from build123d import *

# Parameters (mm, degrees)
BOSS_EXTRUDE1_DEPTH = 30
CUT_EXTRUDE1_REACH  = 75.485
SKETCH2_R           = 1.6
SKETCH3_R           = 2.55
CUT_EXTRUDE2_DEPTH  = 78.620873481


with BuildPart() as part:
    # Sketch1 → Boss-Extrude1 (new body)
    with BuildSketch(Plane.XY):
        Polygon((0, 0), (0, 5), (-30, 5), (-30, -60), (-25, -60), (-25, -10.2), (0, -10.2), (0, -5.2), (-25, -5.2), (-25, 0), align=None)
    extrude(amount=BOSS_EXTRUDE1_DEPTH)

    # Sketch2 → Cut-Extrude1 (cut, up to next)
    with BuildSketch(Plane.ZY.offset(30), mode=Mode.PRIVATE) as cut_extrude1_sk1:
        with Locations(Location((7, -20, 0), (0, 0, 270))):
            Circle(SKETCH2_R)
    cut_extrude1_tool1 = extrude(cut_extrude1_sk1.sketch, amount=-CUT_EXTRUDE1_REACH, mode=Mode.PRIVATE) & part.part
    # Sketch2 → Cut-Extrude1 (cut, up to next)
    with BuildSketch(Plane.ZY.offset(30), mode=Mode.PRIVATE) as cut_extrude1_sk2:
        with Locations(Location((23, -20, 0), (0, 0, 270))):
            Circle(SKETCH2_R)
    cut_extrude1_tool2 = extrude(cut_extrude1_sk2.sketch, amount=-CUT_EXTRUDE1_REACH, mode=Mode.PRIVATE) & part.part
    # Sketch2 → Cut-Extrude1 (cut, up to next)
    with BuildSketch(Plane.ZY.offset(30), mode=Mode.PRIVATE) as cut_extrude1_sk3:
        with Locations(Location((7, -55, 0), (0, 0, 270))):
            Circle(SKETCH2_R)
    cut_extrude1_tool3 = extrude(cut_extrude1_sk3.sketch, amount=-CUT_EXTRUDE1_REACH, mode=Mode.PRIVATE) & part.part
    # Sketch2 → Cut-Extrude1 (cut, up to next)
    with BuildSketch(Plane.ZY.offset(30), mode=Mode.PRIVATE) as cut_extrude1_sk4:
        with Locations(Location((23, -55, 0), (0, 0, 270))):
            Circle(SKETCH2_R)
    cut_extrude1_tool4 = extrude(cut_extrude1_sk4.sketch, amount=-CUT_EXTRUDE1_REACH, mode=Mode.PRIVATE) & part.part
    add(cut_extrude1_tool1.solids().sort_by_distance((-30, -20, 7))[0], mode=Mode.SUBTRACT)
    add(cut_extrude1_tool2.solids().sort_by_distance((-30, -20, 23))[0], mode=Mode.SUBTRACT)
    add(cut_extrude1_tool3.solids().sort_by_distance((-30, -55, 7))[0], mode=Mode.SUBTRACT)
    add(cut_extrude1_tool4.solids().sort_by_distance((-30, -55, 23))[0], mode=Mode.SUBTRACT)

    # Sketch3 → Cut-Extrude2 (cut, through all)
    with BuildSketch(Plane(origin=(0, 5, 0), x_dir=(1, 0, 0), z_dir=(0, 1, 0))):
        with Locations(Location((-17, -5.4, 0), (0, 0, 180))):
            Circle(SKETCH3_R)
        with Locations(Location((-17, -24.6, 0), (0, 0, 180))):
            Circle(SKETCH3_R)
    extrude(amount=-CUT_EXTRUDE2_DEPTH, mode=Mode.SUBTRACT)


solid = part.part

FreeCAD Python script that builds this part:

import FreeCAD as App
import Part
import Sketcher
from FreeCAD import Vector


def add_polygon(sketch, points):
    """Adds a closed chain of lines whose ends are joined by coincident constraints."""
    first, n = sketch.GeometryCount, len(points)
    for a, b in zip(points, points[1:] + points[:1]):
        sketch.addGeometry(Part.LineSegment(App.Vector(*a, 0), App.Vector(*b, 0)), False)
    for i in range(n):
        sketch.addConstraint(Sketcher.Constraint("Coincident", first + i, 2, first + (i + 1) % n, 1))

doc = App.newDocument("Part")
body = doc.addObject("PartDesign::Body", "Body")

# Sketch on XY plane
sketch1 = doc.addObject("Sketcher::SketchObject", "Sketch")
body.addObject(sketch1)
sketch1.AttachmentSupport = (doc.XY_Plane, [""])
sketch1.MapMode = "FlatFace"
add_polygon(sketch1, [(0, 0), (0, 5), (-30, 5), (-30, -60), (-25, -60), (-25, -10.2), (0, -10.2), (0, -5.2), (-25, -5.2), (-25, 0)])  # lines 0-9
sketch1.addConstraint(Sketcher.Constraint("Vertical", 0))
sketch1.addConstraint(Sketcher.Constraint("Horizontal", 1))
sketch1.addConstraint(Sketcher.Constraint("Vertical", 2))
sketch1.addConstraint(Sketcher.Constraint("Horizontal", 3))
sketch1.addConstraint(Sketcher.Constraint("Vertical", 4))
sketch1.addConstraint(Sketcher.Constraint("Horizontal", 5))
sketch1.addConstraint(Sketcher.Constraint("Vertical", 6))
sketch1.addConstraint(Sketcher.Constraint("Horizontal", 7))
sketch1.addConstraint(Sketcher.Constraint("Vertical", 8))
sketch1.addConstraint(Sketcher.Constraint("Horizontal", 9))
sketch1.addConstraint(Sketcher.Constraint("Coincident", 9, 2, -1, 1))
sketch1.addConstraint(Sketcher.Constraint("PointOnObject", 5, 2, -2))
sketch1.addConstraint(Sketcher.Constraint("Vertical", 4, 2, 7, 2))
sketch1.addConstraint(Sketcher.Constraint("Equal", 3, 0))
sketch1.addConstraint(Sketcher.Constraint("Equal", 0, 6))
sketch1.addConstraint(Sketcher.Constraint("DistanceX", 1, 2, 1, 1, 30.0))
sketch1.addConstraint(Sketcher.Constraint("DistanceX", 3, 1, 3, 2, 5.0))
sketch1.addConstraint(Sketcher.Constraint("DistanceY", 2, 2, 2, 1, 65.0))
sketch1.addConstraint(Sketcher.Constraint("DistanceY", 4, 1, 4, 2, 49.8))
pad1 = doc.addObject("PartDesign::Pad", "Pad")
body.addObject(pad1)
pad1.Profile = sketch1
pad1.Length = 30

# Sketch on YZ plane
sketch2 = doc.addObject("Sketcher::SketchObject", "Sketch001")
body.addObject(sketch2)
sketch2.AttachmentSupport = (doc.YZ_Plane, [""])
sketch2.MapMode = "FlatFace"
sketch2.AttachmentOffset = App.Placement(Vector(0, 0, -30), App.Rotation())
sketch2.addGeometry(Part.Circle(Vector(-20, 7, 0), Vector(0, 0, 1), 1.6), False)
sketch2.addConstraint(Sketcher.Constraint("Diameter", 0, 3.2))
sketch2.addConstraint(Sketcher.Constraint("DistanceX", 0, 3, -1, 1, 20.0))
sketch2.addConstraint(Sketcher.Constraint("DistanceY", -1, 1, 0, 3, 7.0))
pocket1 = doc.addObject("PartDesign::Pocket", "Pocket")
body.addObject(pocket1)
pocket1.Profile = sketch2
pocket1.Type = "UpToFirst"
pocket1.Reversed = True

# Sketch on YZ plane
sketch3 = doc.addObject("Sketcher::SketchObject", "Sketch002")
body.addObject(sketch3)
sketch3.AttachmentSupport = (doc.YZ_Plane, [""])
sketch3.MapMode = "FlatFace"
sketch3.AttachmentOffset = App.Placement(Vector(0, 0, -30), App.Rotation())
sketch3.addGeometry(Part.Circle(Vector(-20, 23, 0), Vector(0, 0, 1), 1.6), False)
sketch3.addConstraint(Sketcher.Constraint("Diameter", 0, 3.2))
sketch3.addConstraint(Sketcher.Constraint("DistanceX", 0, 3, -1, 1, 20.0))
sketch3.addConstraint(Sketcher.Constraint("DistanceY", -1, 1, 0, 3, 23.0))
pocket2 = doc.addObject("PartDesign::Pocket", "Pocket001")
body.addObject(pocket2)
pocket2.Profile = sketch3
pocket2.Type = "UpToFirst"
pocket2.Reversed = True

# Sketch on YZ plane
sketch4 = doc.addObject("Sketcher::SketchObject", "Sketch003")
body.addObject(sketch4)
sketch4.AttachmentSupport = (doc.YZ_Plane, [""])
sketch4.MapMode = "FlatFace"
sketch4.AttachmentOffset = App.Placement(Vector(0, 0, -30), App.Rotation())
sketch4.addGeometry(Part.Circle(Vector(-55, 7, 0), Vector(0, 0, 1), 1.6), False)
sketch4.addConstraint(Sketcher.Constraint("Diameter", 0, 3.2))
sketch4.addConstraint(Sketcher.Constraint("DistanceX", 0, 3, -1, 1, 55.0))
sketch4.addConstraint(Sketcher.Constraint("DistanceY", -1, 1, 0, 3, 7.0))
pocket3 = doc.addObject("PartDesign::Pocket", "Pocket002")
body.addObject(pocket3)
pocket3.Profile = sketch4
pocket3.Type = "UpToFirst"
pocket3.Reversed = True

# Sketch on YZ plane
sketch5 = doc.addObject("Sketcher::SketchObject", "Sketch004")
body.addObject(sketch5)
sketch5.AttachmentSupport = (doc.YZ_Plane, [""])
sketch5.MapMode = "FlatFace"
sketch5.AttachmentOffset = App.Placement(Vector(0, 0, -30), App.Rotation())
sketch5.addGeometry(Part.Circle(Vector(-55, 23, 0), Vector(0, 0, 1), 1.6), False)
sketch5.addConstraint(Sketcher.Constraint("Diameter", 0, 3.2))
sketch5.addConstraint(Sketcher.Constraint("DistanceX", 0, 3, -1, 1, 55.0))
sketch5.addConstraint(Sketcher.Constraint("DistanceY", -1, 1, 0, 3, 23.0))
pocket4 = doc.addObject("PartDesign::Pocket", "Pocket003")
body.addObject(pocket4)
pocket4.Profile = sketch5
pocket4.Type = "UpToFirst"
pocket4.Reversed = True

# Sketch on XZ plane
sketch6 = doc.addObject("Sketcher::SketchObject", "Sketch005")
body.addObject(sketch6)
sketch6.AttachmentSupport = (doc.XZ_Plane, [""])
sketch6.MapMode = "FlatFace"
sketch6.AttachmentOffset = App.Placement(Vector(0, 0, -5), App.Rotation())
sketch6.addGeometry(Part.Circle(Vector(-17, 5.4, 0), Vector(0, 0, 1), 2.5), False)
sketch6.addGeometry(Part.Circle(Vector(-17, 24.6, 0), Vector(0, 0, 1), 2.5), False)
sketch6.addConstraint(Sketcher.Constraint("Equal", 0, 1))
sketch6.addConstraint(Sketcher.Constraint("Vertical", 0, 3, 1, 3))
sketch6.addConstraint(Sketcher.Constraint("Diameter", 0, 5.1))
sketch6.addConstraint(Sketcher.Constraint("DistanceX", 0, 3, -1, 1, 17.0))
sketch6.addConstraint(Sketcher.Constraint("DistanceY", -1, 1, 0, 3, 5.4))
sketch6.addConstraint(Sketcher.Constraint("DistanceY", -1, 1, 1, 3, 24.6))
pocket5 = doc.addObject("PartDesign::Pocket", "Pocket004")
body.addObject(pocket5)
pocket5.Profile = sketch6
pocket5.Type = "ThroughAll"
pocket5.Reversed = True

doc.recompute()
